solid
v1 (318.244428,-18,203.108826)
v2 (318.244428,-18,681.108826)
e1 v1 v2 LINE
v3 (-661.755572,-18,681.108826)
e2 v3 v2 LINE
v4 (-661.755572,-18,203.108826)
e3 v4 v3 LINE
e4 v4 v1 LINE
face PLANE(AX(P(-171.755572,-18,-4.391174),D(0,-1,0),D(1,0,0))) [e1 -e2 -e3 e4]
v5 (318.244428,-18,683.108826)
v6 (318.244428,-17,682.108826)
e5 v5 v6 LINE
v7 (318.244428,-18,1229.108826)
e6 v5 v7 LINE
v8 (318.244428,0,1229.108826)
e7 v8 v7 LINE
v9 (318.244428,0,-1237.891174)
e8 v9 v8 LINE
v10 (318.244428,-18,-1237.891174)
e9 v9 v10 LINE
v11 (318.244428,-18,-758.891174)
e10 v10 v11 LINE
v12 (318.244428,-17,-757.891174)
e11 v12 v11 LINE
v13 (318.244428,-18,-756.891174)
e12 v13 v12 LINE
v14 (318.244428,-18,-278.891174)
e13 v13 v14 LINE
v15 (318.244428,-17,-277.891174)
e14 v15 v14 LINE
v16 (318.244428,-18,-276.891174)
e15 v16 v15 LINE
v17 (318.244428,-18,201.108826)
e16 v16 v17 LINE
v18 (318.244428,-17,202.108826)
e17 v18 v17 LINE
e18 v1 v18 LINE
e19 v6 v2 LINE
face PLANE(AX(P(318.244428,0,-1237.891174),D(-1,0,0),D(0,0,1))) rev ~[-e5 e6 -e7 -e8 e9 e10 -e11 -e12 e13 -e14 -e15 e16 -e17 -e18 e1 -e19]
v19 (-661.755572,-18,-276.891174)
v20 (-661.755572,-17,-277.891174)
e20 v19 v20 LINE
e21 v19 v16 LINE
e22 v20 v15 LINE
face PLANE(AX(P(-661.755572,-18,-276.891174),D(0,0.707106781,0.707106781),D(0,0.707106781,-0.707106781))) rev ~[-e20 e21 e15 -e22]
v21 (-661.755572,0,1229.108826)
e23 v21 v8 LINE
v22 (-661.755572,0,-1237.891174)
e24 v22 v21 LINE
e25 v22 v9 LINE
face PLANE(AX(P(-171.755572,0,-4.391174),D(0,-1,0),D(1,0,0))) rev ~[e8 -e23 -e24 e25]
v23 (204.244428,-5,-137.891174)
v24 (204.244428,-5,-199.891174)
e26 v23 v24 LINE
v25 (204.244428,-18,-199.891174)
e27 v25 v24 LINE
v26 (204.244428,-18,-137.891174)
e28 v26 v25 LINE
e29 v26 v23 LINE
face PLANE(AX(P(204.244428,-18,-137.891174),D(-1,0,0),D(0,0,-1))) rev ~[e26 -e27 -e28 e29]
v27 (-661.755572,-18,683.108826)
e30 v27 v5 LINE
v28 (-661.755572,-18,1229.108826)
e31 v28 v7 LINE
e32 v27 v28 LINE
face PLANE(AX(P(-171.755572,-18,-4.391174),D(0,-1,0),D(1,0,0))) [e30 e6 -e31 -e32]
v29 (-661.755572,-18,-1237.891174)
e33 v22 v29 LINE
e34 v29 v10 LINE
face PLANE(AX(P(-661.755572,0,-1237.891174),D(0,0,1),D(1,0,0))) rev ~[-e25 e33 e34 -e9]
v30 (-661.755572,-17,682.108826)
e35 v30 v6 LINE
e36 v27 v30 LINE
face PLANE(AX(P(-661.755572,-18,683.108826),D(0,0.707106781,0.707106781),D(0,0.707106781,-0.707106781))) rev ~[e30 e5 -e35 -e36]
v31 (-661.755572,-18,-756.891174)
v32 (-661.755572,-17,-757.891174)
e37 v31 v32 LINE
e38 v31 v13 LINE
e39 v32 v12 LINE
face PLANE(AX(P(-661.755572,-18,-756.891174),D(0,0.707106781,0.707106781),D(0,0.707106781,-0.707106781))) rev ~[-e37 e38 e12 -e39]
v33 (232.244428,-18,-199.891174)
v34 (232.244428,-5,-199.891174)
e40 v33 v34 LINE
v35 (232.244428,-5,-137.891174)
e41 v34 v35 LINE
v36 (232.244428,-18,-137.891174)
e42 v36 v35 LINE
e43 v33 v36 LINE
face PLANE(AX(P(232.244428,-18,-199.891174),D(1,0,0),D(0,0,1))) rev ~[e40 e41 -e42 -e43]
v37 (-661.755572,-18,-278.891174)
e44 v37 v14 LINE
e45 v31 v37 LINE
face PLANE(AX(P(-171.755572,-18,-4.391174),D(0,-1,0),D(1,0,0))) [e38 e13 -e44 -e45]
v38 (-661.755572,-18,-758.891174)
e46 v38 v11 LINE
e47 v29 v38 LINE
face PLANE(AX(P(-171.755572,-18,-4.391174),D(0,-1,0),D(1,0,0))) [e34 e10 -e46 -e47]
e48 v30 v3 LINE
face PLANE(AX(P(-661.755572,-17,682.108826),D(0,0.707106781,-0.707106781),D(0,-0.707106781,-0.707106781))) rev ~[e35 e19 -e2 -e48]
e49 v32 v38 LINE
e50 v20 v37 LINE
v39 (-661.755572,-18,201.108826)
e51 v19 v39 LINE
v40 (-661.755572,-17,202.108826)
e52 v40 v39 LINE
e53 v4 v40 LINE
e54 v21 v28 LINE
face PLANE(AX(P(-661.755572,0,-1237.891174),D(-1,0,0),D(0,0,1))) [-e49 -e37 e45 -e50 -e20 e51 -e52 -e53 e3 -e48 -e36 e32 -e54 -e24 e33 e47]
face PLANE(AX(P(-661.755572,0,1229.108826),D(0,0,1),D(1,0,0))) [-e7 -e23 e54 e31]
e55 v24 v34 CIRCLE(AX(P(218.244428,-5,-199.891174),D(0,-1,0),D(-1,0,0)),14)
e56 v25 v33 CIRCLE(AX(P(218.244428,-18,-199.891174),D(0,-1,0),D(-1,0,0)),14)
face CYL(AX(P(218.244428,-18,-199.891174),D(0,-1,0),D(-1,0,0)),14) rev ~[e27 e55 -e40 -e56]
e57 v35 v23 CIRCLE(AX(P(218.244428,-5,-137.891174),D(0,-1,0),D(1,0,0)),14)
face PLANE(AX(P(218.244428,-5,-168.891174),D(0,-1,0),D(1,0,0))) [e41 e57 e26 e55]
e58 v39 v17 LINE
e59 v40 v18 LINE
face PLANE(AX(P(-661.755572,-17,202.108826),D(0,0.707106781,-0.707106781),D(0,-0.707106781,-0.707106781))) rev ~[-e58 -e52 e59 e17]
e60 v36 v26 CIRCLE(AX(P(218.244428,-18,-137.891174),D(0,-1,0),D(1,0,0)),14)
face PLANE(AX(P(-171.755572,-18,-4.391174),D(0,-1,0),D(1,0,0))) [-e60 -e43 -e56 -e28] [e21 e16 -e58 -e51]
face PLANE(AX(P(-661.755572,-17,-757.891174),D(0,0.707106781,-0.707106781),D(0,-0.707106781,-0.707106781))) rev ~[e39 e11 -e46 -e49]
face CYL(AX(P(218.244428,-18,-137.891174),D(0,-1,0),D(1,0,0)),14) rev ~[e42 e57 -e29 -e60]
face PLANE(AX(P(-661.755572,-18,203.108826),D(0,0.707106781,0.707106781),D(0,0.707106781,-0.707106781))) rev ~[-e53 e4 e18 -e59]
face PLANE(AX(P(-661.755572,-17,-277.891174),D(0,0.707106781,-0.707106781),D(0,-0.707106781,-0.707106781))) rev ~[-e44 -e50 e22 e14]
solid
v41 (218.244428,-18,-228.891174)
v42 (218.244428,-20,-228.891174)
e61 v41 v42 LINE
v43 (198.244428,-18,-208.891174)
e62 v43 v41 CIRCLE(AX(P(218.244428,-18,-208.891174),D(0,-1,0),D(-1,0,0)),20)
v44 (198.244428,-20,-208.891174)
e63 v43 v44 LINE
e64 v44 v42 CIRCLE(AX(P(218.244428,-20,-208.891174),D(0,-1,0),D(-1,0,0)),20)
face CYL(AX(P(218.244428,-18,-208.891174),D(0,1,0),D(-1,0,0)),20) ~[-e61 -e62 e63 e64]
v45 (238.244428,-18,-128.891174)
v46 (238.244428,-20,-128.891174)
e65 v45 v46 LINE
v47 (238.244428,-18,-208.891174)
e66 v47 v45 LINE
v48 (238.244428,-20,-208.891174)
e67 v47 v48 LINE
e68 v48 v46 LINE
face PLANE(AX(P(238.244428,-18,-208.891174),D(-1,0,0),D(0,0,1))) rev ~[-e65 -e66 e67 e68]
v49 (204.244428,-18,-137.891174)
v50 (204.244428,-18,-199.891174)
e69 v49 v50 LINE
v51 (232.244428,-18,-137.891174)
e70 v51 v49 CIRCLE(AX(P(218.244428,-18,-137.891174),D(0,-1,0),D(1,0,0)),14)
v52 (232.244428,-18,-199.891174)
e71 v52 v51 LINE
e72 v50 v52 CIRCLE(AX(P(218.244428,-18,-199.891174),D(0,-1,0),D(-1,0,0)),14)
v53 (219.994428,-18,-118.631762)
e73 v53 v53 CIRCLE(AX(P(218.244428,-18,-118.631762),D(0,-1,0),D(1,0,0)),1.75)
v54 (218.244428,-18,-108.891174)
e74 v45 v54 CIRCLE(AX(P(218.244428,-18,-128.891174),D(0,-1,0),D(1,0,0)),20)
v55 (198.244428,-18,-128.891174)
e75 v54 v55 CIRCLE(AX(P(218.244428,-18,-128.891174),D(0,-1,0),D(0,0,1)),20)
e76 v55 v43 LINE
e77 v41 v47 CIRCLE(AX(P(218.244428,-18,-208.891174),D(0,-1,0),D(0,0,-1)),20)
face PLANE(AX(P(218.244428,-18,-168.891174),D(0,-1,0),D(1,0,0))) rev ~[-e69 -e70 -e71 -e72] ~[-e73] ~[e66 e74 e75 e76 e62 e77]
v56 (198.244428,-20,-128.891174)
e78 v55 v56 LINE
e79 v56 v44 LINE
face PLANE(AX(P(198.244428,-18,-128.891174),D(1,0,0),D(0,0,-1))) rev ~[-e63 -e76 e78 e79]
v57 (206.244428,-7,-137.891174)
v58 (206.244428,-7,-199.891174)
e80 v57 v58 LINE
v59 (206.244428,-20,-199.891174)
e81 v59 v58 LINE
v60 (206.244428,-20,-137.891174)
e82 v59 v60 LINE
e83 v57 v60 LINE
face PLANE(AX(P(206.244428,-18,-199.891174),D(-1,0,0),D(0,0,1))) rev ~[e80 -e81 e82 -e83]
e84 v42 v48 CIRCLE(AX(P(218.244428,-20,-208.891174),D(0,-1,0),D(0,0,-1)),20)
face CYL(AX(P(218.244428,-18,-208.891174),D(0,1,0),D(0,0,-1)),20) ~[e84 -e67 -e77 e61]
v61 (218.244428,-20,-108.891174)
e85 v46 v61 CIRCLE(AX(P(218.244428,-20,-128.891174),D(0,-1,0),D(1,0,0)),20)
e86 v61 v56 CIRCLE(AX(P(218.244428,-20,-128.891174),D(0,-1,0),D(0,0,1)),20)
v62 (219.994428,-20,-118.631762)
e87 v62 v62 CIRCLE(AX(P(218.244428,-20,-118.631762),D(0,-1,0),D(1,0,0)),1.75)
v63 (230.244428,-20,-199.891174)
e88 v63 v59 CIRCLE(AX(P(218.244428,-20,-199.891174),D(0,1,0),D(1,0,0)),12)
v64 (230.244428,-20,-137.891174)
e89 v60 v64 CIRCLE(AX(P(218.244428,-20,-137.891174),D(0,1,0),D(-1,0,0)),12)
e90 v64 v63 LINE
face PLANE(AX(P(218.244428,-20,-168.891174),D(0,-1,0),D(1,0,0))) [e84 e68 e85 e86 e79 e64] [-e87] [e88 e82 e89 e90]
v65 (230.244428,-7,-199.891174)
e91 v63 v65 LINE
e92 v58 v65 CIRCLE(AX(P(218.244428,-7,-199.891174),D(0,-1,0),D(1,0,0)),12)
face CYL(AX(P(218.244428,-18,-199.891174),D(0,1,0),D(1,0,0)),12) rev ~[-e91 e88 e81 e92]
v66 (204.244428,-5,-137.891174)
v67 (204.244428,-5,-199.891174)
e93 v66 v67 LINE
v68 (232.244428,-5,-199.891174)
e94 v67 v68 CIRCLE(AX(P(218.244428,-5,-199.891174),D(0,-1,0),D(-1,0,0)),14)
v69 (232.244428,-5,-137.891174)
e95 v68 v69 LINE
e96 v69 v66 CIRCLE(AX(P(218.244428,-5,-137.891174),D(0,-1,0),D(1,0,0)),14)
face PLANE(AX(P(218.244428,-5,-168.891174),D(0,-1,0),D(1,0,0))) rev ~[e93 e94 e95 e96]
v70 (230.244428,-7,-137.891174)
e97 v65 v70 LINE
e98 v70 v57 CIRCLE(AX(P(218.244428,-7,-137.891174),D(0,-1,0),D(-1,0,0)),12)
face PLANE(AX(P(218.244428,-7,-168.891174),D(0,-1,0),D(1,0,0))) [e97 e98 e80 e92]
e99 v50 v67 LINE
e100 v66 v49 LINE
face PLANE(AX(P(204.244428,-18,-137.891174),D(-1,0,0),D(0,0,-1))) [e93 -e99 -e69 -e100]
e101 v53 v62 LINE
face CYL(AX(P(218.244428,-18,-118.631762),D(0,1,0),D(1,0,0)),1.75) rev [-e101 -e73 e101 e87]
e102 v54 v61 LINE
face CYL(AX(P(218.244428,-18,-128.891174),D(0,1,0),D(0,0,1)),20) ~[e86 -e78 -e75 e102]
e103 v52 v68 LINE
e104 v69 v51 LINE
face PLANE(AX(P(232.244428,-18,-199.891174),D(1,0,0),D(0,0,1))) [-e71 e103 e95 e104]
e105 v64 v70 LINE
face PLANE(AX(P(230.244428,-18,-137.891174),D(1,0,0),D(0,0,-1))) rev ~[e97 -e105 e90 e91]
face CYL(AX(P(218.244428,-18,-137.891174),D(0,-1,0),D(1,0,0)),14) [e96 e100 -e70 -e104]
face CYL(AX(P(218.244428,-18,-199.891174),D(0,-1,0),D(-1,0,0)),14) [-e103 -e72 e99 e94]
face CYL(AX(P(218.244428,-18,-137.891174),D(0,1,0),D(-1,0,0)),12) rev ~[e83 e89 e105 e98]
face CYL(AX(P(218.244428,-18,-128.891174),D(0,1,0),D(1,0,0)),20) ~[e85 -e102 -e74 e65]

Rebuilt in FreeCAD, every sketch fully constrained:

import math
import FreeCAD as App
import Part
import Sketcher
from FreeCAD import Vector

doc = App.newDocument("Part")
body = doc.addObject("PartDesign::Body", "Body")

# Sketch on XZ plane
sketch1 = body.newObject("Sketcher::SketchObject", "Sketch")
sketch1.AttachmentSupport = (doc.getObject("XZ_Plane"), [""])
sketch1.MapMode = "FlatFace"
sketch1.addGeometry(Part.LineSegment(Vector(-662, 1229, 0), Vector(-662, -1238, 0)), False)
sketch1.addGeometry(Part.LineSegment(Vector(-662, -1238, 0), Vector(318, -1238, 0)), False)
sketch1.addGeometry(Part.LineSegment(Vector(318, -1238, 0), Vector(318, 1229, 0)), False)
sketch1.addGeometry(Part.LineSegment(Vector(318, 1229, 0), Vector(-662, 1229, 0)), False)
sketch1.addConstraint(Sketcher.Constraint("Coincident", 0, 2, 1, 1))
sketch1.addConstraint(Sketcher.Constraint("Coincident", 1, 2, 2, 1))
sketch1.addConstraint(Sketcher.Constraint("Coincident", 2, 2, 3, 1))
sketch1.addConstraint(Sketcher.Constraint("Coincident", 3, 2, 0, 1))
sketch1.addConstraint(Sketcher.Constraint("Vertical", 0))
sketch1.addConstraint(Sketcher.Constraint("Horizontal", 1))
sketch1.addConstraint(Sketcher.Constraint("Vertical", 2))
sketch1.addConstraint(Sketcher.Constraint("Horizontal", 3))
sketch1.addConstraint(Sketcher.Constraint("DistanceX", 1, 1, 1, 2, 980.0))
sketch1.addConstraint(Sketcher.Constraint("DistanceY", 0, 2, 0, 1, 2467.0))
sketch1.addConstraint(Sketcher.Constraint("DistanceX", 0, 2, -1, 1, 661.755572))
sketch1.addConstraint(Sketcher.Constraint("DistanceY", 0, 2, -1, 1, 1237.891174))
pad1 = body.newObject("PartDesign::Pad", "Pad")
pad1.Profile = sketch1
pad1.Length = 18

# Sketch on YZ plane
sketch2 = body.newObject("Sketcher::SketchObject", "Sketch001")
sketch2.AttachmentSupport = (doc.getObject("YZ_Plane"), [""])
sketch2.MapMode = "FlatFace"
sketch2.AttachmentOffset = App.Placement(Vector(0, 0, -661.755572), App.Rotation())
sketch2.addGeometry(Part.LineSegment(Vector(-18, -756.9, 0), Vector(-17, -757.9, 0)), False)
sketch2.addGeometry(Part.LineSegment(Vector(-17, -757.9, 0), Vector(-18, -758.9, 0)), False)
sketch2.addGeometry(Part.LineSegment(Vector(-18, -758.9, 0), Vector(-18, -756.9, 0)), False)
sketch2.addGeometry(Part.LineSegment(Vector(-18, 683.1, 0), Vector(-17, 682.1, 0)), False)
sketch2.addGeometry(Part.LineSegment(Vector(-17, 682.1, 0), Vector(-18, 681.1, 0)), False)
sketch2.addGeometry(Part.LineSegment(Vector(-18, 681.1, 0), Vector(-18, 683.1, 0)), False)
sketch2.addGeometry(Part.LineSegment(Vector(-17, -277.9, 0), Vector(-18, -278.9, 0)), False)
sketch2.addGeometry(Part.LineSegment(Vector(-18, -278.9, 0), Vector(-18, -276.9, 0)), False)
sketch2.addGeometry(Part.LineSegment(Vector(-18, -276.9, 0), Vector(-17, -277.9, 0)), False)
sketch2.addGeometry(Part.LineSegment(Vector(-17, 202.1, 0), Vector(-18, 201.1, 0)), False)
sketch2.addGeometry(Part.LineSegment(Vector(-18, 201.1, 0), Vector(-18, 203.1, 0)), False)
sketch2.addGeometry(Part.LineSegment(Vector(-18, 203.1, 0), Vector(-17, 202.1, 0)), False)
sketch2.addConstraint(Sketcher.Constraint("Coincident", 0, 2, 1, 1))
sketch2.addConstraint(Sketcher.Constraint("Coincident", 1, 2, 2, 1))
sketch2.addConstraint(Sketcher.Constraint("Coincident", 2, 2, 0, 1))
sketch2.addConstraint(Sketcher.Constraint("Coincident", 3, 2, 4, 1))
sketch2.addConstraint(Sketcher.Constraint("Coincident", 4, 2, 5, 1))
sketch2.addConstraint(Sketcher.Constraint("Coincident", 5, 2, 3, 1))
sketch2.addConstraint(Sketcher.Constraint("Coincident", 6, 2, 7, 1))
sketch2.addConstraint(Sketcher.Constraint("Coincident", 7, 2, 8, 1))
sketch2.addConstraint(Sketcher.Constraint("Coincident", 8, 2, 6, 1))
sketch2.addConstraint(Sketcher.Constraint("Coincident", 9, 2, 10, 1))
sketch2.addConstraint(Sketcher.Constraint("Coincident", 10, 2, 11, 1))
sketch2.addConstraint(Sketcher.Constraint("Coincident", 11, 2, 9, 1))
sketch2.addConstraint(Sketcher.Constraint("Vertical", 2))
sketch2.addConstraint(Sketcher.Constraint("Vertical", 5))
sketch2.addConstraint(Sketcher.Constraint("Vertical", 7))
sketch2.addConstraint(Sketcher.Constraint("Vertical", 10))
sketch2.addConstraint(Sketcher.Constraint("Perpendicular", 0, 1))
sketch2.addConstraint(Sketcher.Constraint("Perpendicular", 1, 3))
sketch2.addConstraint(Sketcher.Constraint("Perpendicular", 3, 4))
sketch2.addConstraint(Sketcher.Constraint("Parallel", 4, 6))
sketch2.addConstraint(Sketcher.Constraint("Perpendicular", 6, 8))
sketch2.addConstraint(Sketcher.Constraint("Perpendicular", 8, 9))
sketch2.addConstraint(Sketcher.Constraint("Perpendicular", 9, 11))
sketch2.addConstraint(Sketcher.Constraint("Vertical", 0, 2, 3, 2))
sketch2.addConstraint(Sketcher.Constraint("Vertical", 2, 2, 4, 2))
sketch2.addConstraint(Sketcher.Constraint("Vertical", 5, 2, 6, 2))
sketch2.addConstraint(Sketcher.Constraint("Vertical", 3, 2, 8, 2))
sketch2.addConstraint(Sketcher.Constraint("Vertical", 7, 2, 9, 2))
sketch2.addConstraint(Sketcher.Constraint("Vertical", 8, 2, 11, 2))
sketch2.addConstraint(Sketcher.Constraint("Equal", 0, 1))
sketch2.addConstraint(Sketcher.Constraint("DistanceY", 2, 1, 2, 2, 2.0))
sketch2.addConstraint(Sketcher.Constraint("DistanceX", 0, 2, -1, 1, 17.0))
sketch2.addConstraint(Sketcher.Constraint("DistanceY", 2, 2, 3, 2, 1439.0))
sketch2.addConstraint(Sketcher.Constraint("DistanceY", 2, 2, 6, 2, 478.0))
sketch2.addConstraint(Sketcher.Constraint("DistanceY", 7, 2, 9, 2, 478.0))
sketch2.addConstraint(Sketcher.Constraint("DistanceY", 0, 2, -1, 1, 757.891174))
pocket1 = body.newObject("PartDesign::Pocket", "Pocket")
pocket1.Profile = sketch2
pocket1.Type = "ThroughAll"
pocket1.Reversed = True

# Sketch on XZ plane
sketch3 = body.newObject("Sketcher::SketchObject", "Sketch002")
sketch3.AttachmentSupport = (doc.getObject("XZ_Plane"), [""])
sketch3.MapMode = "FlatFace"
sketch3.AttachmentOffset = App.Placement(Vector(0, 0, 18), App.Rotation())
sketch3.addGeometry(Part.LineSegment(Vector(232, -200, 0), Vector(232, -138, 0)), False)
sketch3.addGeometry(Part.ArcOfCircle(Part.Circle(Vector(218, -138, 0), Vector(0, 0, 1), 14), math.radians(0), math.radians(180)), False)
sketch3.addGeometry(Part.LineSegment(Vector(204, -138, 0), Vector(204, -200, 0)), False)
sketch3.addGeometry(Part.ArcOfCircle(Part.Circle(Vector(218, -200, 0), Vector(0, 0, 1), 14), math.radians(180), math.radians(360)), False)
sketch3.addConstraint(Sketcher.Constraint("Tangent", 0, 2, 1, 1))
sketch3.addConstraint(Sketcher.Constraint("Tangent", 1, 2, 2, 1))
sketch3.addConstraint(Sketcher.Constraint("Tangent", 2, 2, 3, 1))
sketch3.addConstraint(Sketcher.Constraint("Tangent", 3, 2, 0, 1))
sketch3.addConstraint(Sketcher.Constraint("Vertical", 0))
sketch3.addConstraint(Sketcher.Constraint("Vertical", 2))
sketch3.addConstraint(Sketcher.Constraint("Radius", 1, 14.0))
sketch3.addConstraint(Sketcher.Constraint("DistanceY", 0, 1, 0, 2, 62.0))
sketch3.addConstraint(Sketcher.Constraint("DistanceX", -1, 1, 1, 3, 218.244428))
sketch3.addConstraint(Sketcher.Constraint("DistanceY", 1, 3, -1, 1, 137.891174))
pocket2 = body.newObject("PartDesign::Pocket", "Pocket001")
pocket2.Profile = sketch3
pocket2.Length = 13
body2 = doc.addObject("PartDesign::Body", "Body001")

# Sketch on XZ plane
sketch4 = body2.newObject("Sketcher::SketchObject", "Sketch003")
sketch4.AttachmentSupport = (doc.getObject("XZ_Plane001"), [""])
sketch4.MapMode = "FlatFace"
sketch4.AttachmentOffset = App.Placement(Vector(0, 0, 18), App.Rotation())
sketch4.addGeometry(Part.LineSegment(Vector(232, -200, 0), Vector(232, -138, 0)), False)
sketch4.addGeometry(Part.ArcOfCircle(Part.Circle(Vector(218, -138, 0), Vector(0, 0, 1), 14), math.radians(0), math.radians(180)), False)
sketch4.addGeometry(Part.LineSegment(Vector(204, -138, 0), Vector(204, -200, 0)), False)
sketch4.addGeometry(Part.ArcOfCircle(Part.Circle(Vector(218, -200, 0), Vector(0, 0, 1), 14), math.radians(180), math.radians(360)), False)
sketch4.addGeometry(Part.LineSegment(Vector(206, -200, 0), Vector(206, -138, 0)), False)
sketch4.addGeometry(Part.ArcOfCircle(Part.Circle(Vector(218, -138, 0), Vector(0, 0, 1), 12), math.radians(0), math.radians(180)), False)
sketch4.addGeometry(Part.LineSegment(Vector(230, -138, 0), Vector(230, -200, 0)), False)
sketch4.addGeometry(Part.ArcOfCircle(Part.Circle(Vector(218, -200, 0), Vector(0, 0, 1), 12), math.radians(180), math.radians(360)), False)
sketch4.addConstraint(Sketcher.Constraint("Tangent", 0, 2, 1, 1))
sketch4.addConstraint(Sketcher.Constraint("Tangent", 1, 2, 2, 1))
sketch4.addConstraint(Sketcher.Constraint("Tangent", 2, 2, 3, 1))
sketch4.addConstraint(Sketcher.Constraint("Tangent", 3, 2, 0, 1))
sketch4.addConstraint(Sketcher.Constraint("Tangent", 4, 2, 5, 2))
sketch4.addConstraint(Sketcher.Constraint("Tangent", 5, 1, 6, 1))
sketch4.addConstraint(Sketcher.Constraint("Tangent", 6, 2, 7, 2))
sketch4.addConstraint(Sketcher.Constraint("Tangent", 7, 1, 4, 1))
sketch4.addConstraint(Sketcher.Constraint("Vertical", 0))
sketch4.addConstraint(Sketcher.Constraint("Vertical", 2))
sketch4.addConstraint(Sketcher.Constraint("Vertical", 4))
sketch4.addConstraint(Sketcher.Constraint("Vertical", 6))
sketch4.addConstraint(Sketcher.Constraint("Coincident", 5, 3, 1, 3))
sketch4.addConstraint(Sketcher.Constraint("Horizontal", 7, 3, 2, 2))
sketch4.addConstraint(Sketcher.Constraint("Radius", 1, 14.0))
sketch4.addConstraint(Sketcher.Constraint("Radius", 5, 12.0))
sketch4.addConstraint(Sketcher.Constraint("DistanceY", 0, 1, 0, 2, 62.0))
sketch4.addConstraint(Sketcher.Constraint("DistanceX", -1, 1, 1, 3, 218.244428))
sketch4.addConstraint(Sketcher.Constraint("DistanceY", 1, 3, -1, 1, 137.891174))
pad2 = body2.newObject("PartDesign::Pad", "Pad001")
pad2.Profile = sketch4
pad2.Length = 13
pad2.Reversed = True

# Sketch on XZ plane
sketch5 = body2.newObject("Sketcher::SketchObject", "Sketch004")
sketch5.AttachmentSupport = (doc.getObject("XZ_Plane001"), [""])
sketch5.MapMode = "FlatFace"
sketch5.AttachmentOffset = App.Placement(Vector(0, 0, 7), App.Rotation())
sketch5.addGeometry(Part.LineSegment(Vector(232, -200, 0), Vector(232, -138, 0)), False)
sketch5.addGeometry(Part.ArcOfCircle(Part.Circle(Vector(218, -138, 0), Vector(0, 0, 1), 14), math.radians(0), math.radians(180)), False)
sketch5.addGeometry(Part.LineSegment(Vector(204, -138, 0), Vector(204, -200, 0)), False)
sketch5.addGeometry(Part.ArcOfCircle(Part.Circle(Vector(218, -200, 0), Vector(0, 0, 1), 14), math.radians(180), math.radians(360)), False)
sketch5.addConstraint(Sketcher.Constraint("Tangent", 0, 2, 1, 1))
sketch5.addConstraint(Sketcher.Constraint("Tangent", 1, 2, 2, 1))
sketch5.addConstraint(Sketcher.Constraint("Tangent", 2, 2, 3, 1))
sketch5.addConstraint(Sketcher.Constraint("Tangent", 3, 2, 0, 1))
sketch5.addConstraint(Sketcher.Constraint("Vertical", 0))
sketch5.addConstraint(Sketcher.Constraint("Vertical", 2))
sketch5.addConstraint(Sketcher.Constraint("Radius", 1, 14.0))
sketch5.addConstraint(Sketcher.Constraint("DistanceY", 0, 1, 0, 2, 62.0))
sketch5.addConstraint(Sketcher.Constraint("DistanceX", -1, 1, 1, 3, 218.244428))
sketch5.addConstraint(Sketcher.Constraint("DistanceY", 1, 3, -1, 1, 137.891174))
pad3 = body2.newObject("PartDesign::Pad", "Pad002")
pad3.Profile = sketch5
pad3.Length = 2
pad3.Reversed = True

# Sketch on XZ plane
sketch6 = body2.newObject("Sketcher::SketchObject", "Sketch005")
sketch6.AttachmentSupport = (doc.getObject("XZ_Plane001"), [""])
sketch6.MapMode = "FlatFace"
sketch6.AttachmentOffset = App.Placement(Vector(0, 0, 18), App.Rotation())
sketch6.addGeometry(Part.ArcOfCircle(Part.Circle(Vector(218.2, -128.9, 0), Vector(0, 0, 1), 20), math.radians(0), math.radians(90)), False)
sketch6.addGeometry(Part.ArcOfCircle(Part.Circle(Vector(218.2, -128.9, 0), Vector(0, 0, 1), 20), math.radians(90), math.radians(180)), False)
sketch6.addGeometry(Part.LineSegment(Vector(198.2, -128.9, 0), Vector(198.2, -208.9, 0)), False)
sketch6.addGeometry(Part.ArcOfCircle(Part.Circle(Vector(218.2, -208.9, 0), Vector(0, 0, 1), 20), math.radians(180), math.radians(270)), False)
sketch6.addGeometry(Part.ArcOfCircle(Part.Circle(Vector(218.2, -208.9, 0), Vector(0, 0, 1), 20), math.radians(-90), math.radians(0)), False)
sketch6.addGeometry(Part.LineSegment(Vector(238.2, -208.9, 0), Vector(238.2, -128.9, 0)), False)
sketch6.addGeometry(Part.LineSegment(Vector(206.2, -199.9, 0), Vector(206.2, -137.9, 0)), False)
sketch6.addGeometry(Part.ArcOfCircle(Part.Circle(Vector(218.2, -137.9, 0), Vector(0, 0, 1), 12), math.radians(0), math.radians(180)), False)
sketch6.addGeometry(Part.LineSegment(Vector(230.2, -137.9, 0), Vector(230.2, -199.9, 0)), False)
sketch6.addGeometry(Part.ArcOfCircle(Part.Circle(Vector(218.2, -199.9, 0), Vector(0, 0, 1), 12), math.radians(180), math.radians(360)), False)
sketch6.addGeometry(Part.Circle(Vector(218.2, -118.6, 0), Vector(0, 0, 1), 1.8), False)
sketch6.addConstraint(Sketcher.Constraint("Tangent", 0, 2, 1, 1))
sketch6.addConstraint(Sketcher.Constraint("Tangent", 1, 2, 2, 1))
sketch6.addConstraint(Sketcher.Constraint("Tangent", 2, 2, 3, 1))
sketch6.addConstraint(Sketcher.Constraint("Tangent", 3, 2, 4, 1))
sketch6.addConstraint(Sketcher.Constraint("Tangent", 4, 2, 5, 1))
sketch6.addConstraint(Sketcher.Constraint("Tangent", 5, 2, 0, 1))
sketch6.addConstraint(Sketcher.Constraint("Tangent", 6, 2, 7, 2))
sketch6.addConstraint(Sketcher.Constraint("Tangent", 7, 1, 8, 1))
sketch6.addConstraint(Sketcher.Constraint("Tangent", 8, 2, 9, 2))
sketch6.addConstraint(Sketcher.Constraint("Tangent", 9, 1, 6, 1))
sketch6.addConstraint(Sketcher.Constraint("Vertical", 2))
sketch6.addConstraint(Sketcher.Constraint("Vertical", 5))
sketch6.addConstraint(Sketcher.Constraint("Vertical", 6))
sketch6.addConstraint(Sketcher.Constraint("Vertical", 8))
sketch6.addConstraint(Sketcher.Constraint("Equal", 0, 1))
sketch6.addConstraint(Sketcher.Constraint("Equal", 1, 3))
sketch6.addConstraint(Sketcher.Constraint("Vertical", 4, 3, 7, 3))
sketch6.addConstraint(Sketcher.Constraint("Vertical", 9, 3, 10, 3))
sketch6.addConstraint(Sketcher.Constraint("Vertical", 10, 3, 0, 2))
sketch6.addConstraint(Sketcher.Constraint("Vertical", 0, 2, 3, 2))
sketch6.addConstraint(Sketcher.Constraint("Radius", 0, 20.0))
sketch6.addConstraint(Sketcher.Constraint("Radius", 7, 12.0))
sketch6.addConstraint(Sketcher.Constraint("Diameter", 10, 3.5))
sketch6.addConstraint(Sketcher.Constraint("DistanceY", 2, 2, 2, 1, 80.0))
sketch6.addConstraint(Sketcher.Constraint("DistanceY", 6, 1, 6, 2, 62.0))
sketch6.addConstraint(Sketcher.Constraint("DistanceY", 7, 3, 0, 3, 9.0))
sketch6.addConstraint(Sketcher.Constraint("DistanceX", -1, 1, 0, 3, 218.244428))
sketch6.addConstraint(Sketcher.Constraint("DistanceY", 0, 3, 10, 3, 10.259411))
sketch6.addConstraint(Sketcher.Constraint("DistanceY", 0, 3, -1, 1, 128.891174))
pad4 = body2.newObject("PartDesign::Pad", "Pad003")
pad4.Profile = sketch6
pad4.Length = 2

doc.recompute()
